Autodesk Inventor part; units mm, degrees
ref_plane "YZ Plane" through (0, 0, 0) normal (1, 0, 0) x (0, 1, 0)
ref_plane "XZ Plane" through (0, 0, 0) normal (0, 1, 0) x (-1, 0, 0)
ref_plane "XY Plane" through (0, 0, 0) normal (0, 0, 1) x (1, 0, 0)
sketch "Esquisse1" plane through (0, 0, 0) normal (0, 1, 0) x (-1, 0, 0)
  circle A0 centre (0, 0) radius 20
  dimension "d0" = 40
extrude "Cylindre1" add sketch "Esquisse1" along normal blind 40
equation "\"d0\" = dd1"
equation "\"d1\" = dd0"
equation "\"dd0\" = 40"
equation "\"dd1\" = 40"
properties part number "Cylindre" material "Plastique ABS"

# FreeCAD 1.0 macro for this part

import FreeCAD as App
import Part
import Sketcher

V = App.Vector
Q = App.Units.Quantity

doc = App.newDocument("Part")
body = doc.addObject("PartDesign::Body", "Body")

# Sketch on XZ plane
sketch1 = doc.addObject("Sketcher::SketchObject", "Sketch")
body.addObject(sketch1)
sketch1.AttachmentSupport = (doc.XZ_Plane, [""])
sketch1.MapMode = "FlatFace"
sketch1.addGeometry(Part.Circle(V(0, 0, 0), V(0, 0, 1), 20), False)
sketch1.addConstraint([
    Sketcher.Constraint("Coincident", 0, 3, -1, 1),
    Sketcher.Constraint("Diameter", 0, Q("40 mm")),
])
pad1 = doc.addObject("PartDesign::Pad", "Pad")
body.addObject(pad1)
pad1.Profile = sketch1
pad1.Length = 40
pad1.Reversed = True

doc.recompute()
